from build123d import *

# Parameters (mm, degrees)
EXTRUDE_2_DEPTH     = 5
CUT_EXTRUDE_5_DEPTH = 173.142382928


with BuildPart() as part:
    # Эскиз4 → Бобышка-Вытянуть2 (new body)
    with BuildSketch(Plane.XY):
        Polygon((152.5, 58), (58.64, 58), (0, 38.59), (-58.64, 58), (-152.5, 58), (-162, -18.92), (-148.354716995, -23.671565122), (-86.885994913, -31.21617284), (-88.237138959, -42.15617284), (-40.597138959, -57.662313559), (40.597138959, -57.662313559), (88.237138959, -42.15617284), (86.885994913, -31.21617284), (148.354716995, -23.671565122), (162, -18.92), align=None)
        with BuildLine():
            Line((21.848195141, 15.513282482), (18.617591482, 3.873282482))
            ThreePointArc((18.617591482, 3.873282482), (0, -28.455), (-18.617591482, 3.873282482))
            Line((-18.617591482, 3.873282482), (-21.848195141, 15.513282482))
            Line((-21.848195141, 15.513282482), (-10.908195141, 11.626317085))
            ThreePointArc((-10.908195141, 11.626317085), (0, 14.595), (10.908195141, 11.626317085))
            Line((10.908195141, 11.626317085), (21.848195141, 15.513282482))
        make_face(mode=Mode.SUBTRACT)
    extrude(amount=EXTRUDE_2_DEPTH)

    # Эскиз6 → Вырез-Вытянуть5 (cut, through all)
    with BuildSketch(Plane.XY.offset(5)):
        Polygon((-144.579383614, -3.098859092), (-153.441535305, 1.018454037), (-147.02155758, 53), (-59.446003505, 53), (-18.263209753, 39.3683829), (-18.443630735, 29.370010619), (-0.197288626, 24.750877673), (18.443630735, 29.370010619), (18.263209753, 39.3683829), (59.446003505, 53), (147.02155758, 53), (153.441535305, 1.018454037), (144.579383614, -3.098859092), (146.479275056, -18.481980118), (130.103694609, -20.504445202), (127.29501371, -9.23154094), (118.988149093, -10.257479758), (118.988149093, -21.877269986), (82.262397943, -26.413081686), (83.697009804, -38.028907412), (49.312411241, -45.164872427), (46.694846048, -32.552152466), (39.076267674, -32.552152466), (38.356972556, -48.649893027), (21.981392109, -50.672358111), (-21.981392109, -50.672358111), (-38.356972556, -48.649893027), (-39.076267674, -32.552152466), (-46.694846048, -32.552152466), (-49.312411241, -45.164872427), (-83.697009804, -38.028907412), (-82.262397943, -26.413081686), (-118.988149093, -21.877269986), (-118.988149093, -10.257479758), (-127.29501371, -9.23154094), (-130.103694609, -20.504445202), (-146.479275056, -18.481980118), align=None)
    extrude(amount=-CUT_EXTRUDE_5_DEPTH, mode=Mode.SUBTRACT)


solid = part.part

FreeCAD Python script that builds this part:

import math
import FreeCAD as App
import Part
import Sketcher

V = App.Vector

doc = App.newDocument("Part")
body = doc.addObject("PartDesign::Body", "Body")

# Sketch on XY plane
sketch1 = body.newObject("Sketcher::SketchObject", "Sketch")
sketch1.AttachmentSupport = (doc.getObject("XY_Plane"), [""])
sketch1.MapMode = "FlatFace"
sketch1.addGeometry([
    Part.LineSegment(V(152, 58, 0), V(59, 58, 0)),  # 0
    Part.LineSegment(V(59, 58, 0), V(0, 39, 0)),  # 1
    Part.LineSegment(V(0, 39, 0), V(-59, 58, 0)),  # 2
    Part.LineSegment(V(-59, 58, 0), V(-152, 58, 0)),  # 3
    Part.LineSegment(V(-152, 58, 0), V(-162, -19, 0)),  # 4
    Part.LineSegment(V(-162, -19, 0), V(-148, -24, 0)),  # 5
    Part.LineSegment(V(-148, -24, 0), V(-87, -31, 0)),  # 6
    Part.LineSegment(V(-87, -31, 0), V(-88, -42, 0)),  # 7
    Part.LineSegment(V(-88, -42, 0), V(-41, -58, 0)),  # 8
    Part.LineSegment(V(-41, -58, 0), V(41, -58, 0)),  # 9
    Part.LineSegment(V(41, -58, 0), V(88, -42, 0)),  # 10
    Part.LineSegment(V(88, -42, 0), V(87, -31, 0)),  # 11
    Part.LineSegment(V(87, -31, 0), V(148, -24, 0)),  # 12
    Part.LineSegment(V(148, -24, 0), V(162, -19, 0)),  # 13
    Part.LineSegment(V(162, -19, 0), V(152, 58, 0)),  # 14
    Part.LineSegment(V(11, 12, 0), V(22, 16, 0)),  # 15
    Part.LineSegment(V(22, 16, 0), V(19, 4, 0)),  # 16
    Part.ArcOfCircle(Part.Circle(V(0, -7, 0), V(0, 0, 1), 22), math.radians(150), math.radians(390)),  # 17
    Part.LineSegment(V(-19, 4, 0), V(-22, 16, 0)),  # 18
    Part.LineSegment(V(-22, 16, 0), V(-11, 12, 0)),  # 19
    Part.ArcOfCircle(Part.Circle(V(0, -7, 0), V(0, 0, 1), 22), math.radians(60), math.radians(120)),  # 20
], False)
sketch1.addConstraint([
    Sketcher.Constraint("Coincident", 0, 2, 1, 1),
    Sketcher.Constraint("Coincident", 1, 2, 2, 1),
    Sketcher.Constraint("Coincident", 2, 2, 3, 1),
    Sketcher.Constraint("Coincident", 3, 2, 4, 1),
    Sketcher.Constraint("Coincident", 4, 2, 5, 1),
    Sketcher.Constraint("Coincident", 5, 2, 6, 1),
    Sketcher.Constraint("Coincident", 6, 2, 7, 1),
    Sketcher.Constraint("Coincident", 7, 2, 8, 1),
    Sketcher.Constraint("Coincident", 8, 2, 9, 1),
    Sketcher.Constraint("Coincident", 9, 2, 10, 1),
    Sketcher.Constraint("Coincident", 10, 2, 11, 1),
    Sketcher.Constraint("Coincident", 11, 2, 12, 1),
    Sketcher.Constraint("Coincident", 12, 2, 13, 1),
    Sketcher.Constraint("Coincident", 13, 2, 14, 1),
    Sketcher.Constraint("Coincident", 14, 2, 0, 1),
    Sketcher.Constraint("Coincident", 15, 2, 16, 1),
    Sketcher.Constraint("Coincident", 16, 2, 17, 2),
    Sketcher.Constraint("Coincident", 17, 1, 18, 1),
    Sketcher.Constraint("Coincident", 18, 2, 19, 1),
    Sketcher.Constraint("Coincident", 19, 2, 20, 2),
    Sketcher.Constraint("Coincident", 20, 1, 15, 1),
    Sketcher.Constraint("Horizontal", 0),
    Sketcher.Constraint("Horizontal", 3),
    Sketcher.Constraint("Horizontal", 9),
    Sketcher.Constraint("Coincident", 20, 3, 17, 3),
    Sketcher.Constraint("Equal", 17, 20),
    Sketcher.Constraint("Symmetric", 0, 2, 2, 2, -2),
    Sketcher.Constraint("Symmetric", 7, 2, 10, 2, -2),
    Sketcher.Constraint("Symmetric", 6, 2, 11, 2, -2),
    Sketcher.Constraint("Symmetric", 5, 2, 12, 2, -2),
    Sketcher.Constraint("Symmetric", 4, 2, 13, 2, -2),
    Sketcher.Constraint("Symmetric", 16, 2, 17, 1, -2),
    Sketcher.Constraint("Symmetric", 15, 2, 18, 2, -2),
    Sketcher.Constraint("PointOnObject", 1, 2, -2),
    Sketcher.Constraint("Parallel", 4, 7),
    Sketcher.Constraint("Parallel", 11, 14),
    Sketcher.Constraint("Horizontal", 19, 2, 20, 1),
    Sketcher.Constraint("Equal", 8, 10),
    Sketcher.Constraint("DistanceY", -1, 1, 0, 2, 58.0),
    Sketcher.Constraint("DistanceX", 4, 2, -1, 1, 162.0),
    Sketcher.Constraint("Radius", 17, 21.525),
    Sketcher.Constraint("Distance", 8, 50.1),
    Sketcher.Constraint("DistanceX", 0, 2, 0, 1, 93.86),
    Sketcher.Constraint("DistanceX", 3, 2, -1, 1, 152.5),
    Sketcher.Constraint("Distance", 6, 61.93),
    Sketcher.Constraint("Distance", 15, 11.61),
    Sketcher.Constraint("Distance", 16, 12.08),
    Sketcher.Constraint("DistanceY", 17, 3, -1, 1, 6.93),
    Sketcher.Constraint("DistanceY", -1, 1, 1, 2, 38.59),
    Sketcher.Constraint("DistanceY", 4, 2, -1, 1, 18.92),
    Sketcher.Constraint("DistanceY", 7, 2, 6, 2, 10.94),
    Sketcher.Constraint("DistanceX", 7, 2, 8, 2, 47.64),
    Sketcher.Constraint("DistanceY", 16, 2, 15, 2, 11.64),
    Sketcher.Constraint("DistanceX", 18, 2, 19, 2, 10.94),
    Sketcher.Constraint("DistanceX", 9, 1, 9, 2, 81.194278),
    Sketcher.Constraint("DistanceX", 5, 2, 7, 2, 60.117578),
    Sketcher.Constraint("Distance", 5, 14.448914),
])
pad1 = body.newObject("PartDesign::Pad", "Pad")
pad1.Profile = sketch1
pad1.Length = 5

# Sketch on XY plane
sketch2 = body.newObject("Sketcher::SketchObject", "Sketch001")
sketch2.AttachmentSupport = (doc.getObject("XY_Plane"), [""])
sketch2.MapMode = "FlatFace"
sketch2.AttachmentOffset = App.Placement(V(0, 0, 5), App.Rotation())
sketch2.addGeometry([
    Part.LineSegment(V(-153, 1, 0), V(-145, -3, 0)),  # 0
    Part.LineSegment(V(-145, -3, 0), V(-146, -18, 0)),  # 1
    Part.LineSegment(V(-146, -18, 0), V(-130, -21, 0)),  # 2
    Part.LineSegment(V(-130, -21, 0), V(-127, -9, 0)),  # 3
    Part.LineSegment(V(-127, -9, 0), V(-119, -10, 0)),  # 4
    Part.LineSegment(V(-119, -10, 0), V(-119, -22, 0)),  # 5
    Part.LineSegment(V(-119, -22, 0), V(-82, -26, 0)),  # 6
    Part.LineSegment(V(-82, -26, 0), V(-84, -38, 0)),  # 7
    Part.LineSegment(V(-84, -38, 0), V(-49, -45, 0)),  # 8
    Part.LineSegment(V(-49, -45, 0), V(-47, -33, 0)),  # 9
    Part.LineSegment(V(-47, -33, 0), V(-39, -33, 0)),  # 10
    Part.LineSegment(V(-39, -33, 0), V(-38, -49, 0)),  # 11
    Part.LineSegment(V(-38, -49, 0), V(-22, -51, 0)),  # 12
    Part.LineSegment(V(-22, -51, 0), V(22, -51, 0)),  # 13
    Part.LineSegment(V(22, -51, 0), V(38, -49, 0)),  # 14
    Part.LineSegment(V(38, -49, 0), V(39, -33, 0)),  # 15
    Part.LineSegment(V(39, -33, 0), V(47, -33, 0)),  # 16
    Part.LineSegment(V(47, -33, 0), V(49, -45, 0)),  # 17
    Part.LineSegment(V(49, -45, 0), V(84, -38, 0)),  # 18
    Part.LineSegment(V(84, -38, 0), V(82, -26, 0)),  # 19
    Part.LineSegment(V(82, -26, 0), V(119, -22, 0)),  # 20
    Part.LineSegment(V(119, -22, 0), V(119, -10, 0)),  # 21
    Part.LineSegment(V(119, -10, 0), V(127, -9, 0)),  # 22
    Part.LineSegment(V(127, -9, 0), V(130, -21, 0)),  # 23
    Part.LineSegment(V(130, -21, 0), V(146, -18, 0)),  # 24
    Part.LineSegment(V(146, -18, 0), V(145, -3, 0)),  # 25
    Part.LineSegment(V(145, -3, 0), V(153, 1, 0)),  # 26
    Part.LineSegment(V(153, 1, 0), V(147, 53, 0)),  # 27
    Part.LineSegment(V(147, 53, 0), V(59, 53, 0)),  # 28
    Part.LineSegment(V(59, 53, 0), V(18, 39, 0)),  # 29
    Part.LineSegment(V(18, 39, 0), V(18, 29, 0)),  # 30
    Part.LineSegment(V(18, 29, 0), V(0, 25, 0)),  # 31
    Part.LineSegment(V(0, 25, 0), V(-18, 29, 0)),  # 32
    Part.LineSegment(V(-18, 29, 0), V(-18, 39, 0)),  # 33
    Part.LineSegment(V(-18, 39, 0), V(-59, 53, 0)),  # 34
    Part.LineSegment(V(-59, 53, 0), V(-147, 53, 0)),  # 35
    Part.LineSegment(V(-147, 53, 0), V(-153, 1, 0)),  # 36
], False)
sketch2.addConstraint([
    Sketcher.Constraint("Coincident", 0, 2, 1, 1),
    Sketcher.Constraint("Coincident", 1, 2, 2, 1),
    Sketcher.Constraint("Coincident", 2, 2, 3, 1),
    Sketcher.Constraint("Coincident", 3, 2, 4, 1),
    Sketcher.Constraint("Coincident", 4, 2, 5, 1),
    Sketcher.Constraint("Coincident", 5, 2, 6, 1),
    Sketcher.Constraint("Coincident", 6, 2, 7, 1),
    Sketcher.Constraint("Coincident", 7, 2, 8, 1),
    Sketcher.Constraint("Coincident", 8, 2, 9, 1),
    Sketcher.Constraint("Coincident", 9, 2, 10, 1),
    Sketcher.Constraint("Coincident", 10, 2, 11, 1),
    Sketcher.Constraint("Coincident", 11, 2, 12, 1),
    Sketcher.Constraint("Coincident", 12, 2, 13, 1),
    Sketcher.Constraint("Coincident", 13, 2, 14, 1),
    Sketcher.Constraint("Coincident", 14, 2, 15, 1),
    Sketcher.Constraint("Coincident", 15, 2, 16, 1),
    Sketcher.Constraint("Coincident", 16, 2, 17, 1),
    Sketcher.Constraint("Coincident", 17, 2, 18, 1),
    Sketcher.Constraint("Coincident", 18, 2, 19, 1),
    Sketcher.Constraint("Coincident", 19, 2, 20, 1),
    Sketcher.Constraint("Coincident", 20, 2, 21, 1),
    Sketcher.Constraint("Coincident", 21, 2, 22, 1),
    Sketcher.Constraint("Coincident", 22, 2, 23, 1),
    Sketcher.Constraint("Coincident", 23, 2, 24, 1),
    Sketcher.Constraint("Coincident", 24, 2, 25, 1),
    Sketcher.Constraint("Coincident", 25, 2, 26, 1),
    Sketcher.Constraint("Coincident", 26, 2, 27, 1),
    Sketcher.Constraint("Coincident", 27, 2, 28, 1),
    Sketcher.Constraint("Coincident", 28, 2, 29, 1),
    Sketcher.Constraint("Coincident", 29, 2, 30, 1),
    Sketcher.Constraint("Coincident", 30, 2, 31, 1),
    Sketcher.Constraint("Coincident", 31, 2, 32, 1),
    Sketcher.Constraint("Coincident", 32, 2, 33, 1),
    Sketcher.Constraint("Coincident", 33, 2, 34, 1),
    Sketcher.Constraint("Coincident", 34, 2, 35, 1),
    Sketcher.Constraint("Coincident", 35, 2, 36, 1),
    Sketcher.Constraint("Coincident", 36, 2, 0, 1),
    Sketcher.Constraint("Vertical", 5),
    Sketcher.Constraint("Horizontal", 10),
    Sketcher.Constraint("Horizontal", 13),
    Sketcher.Constraint("Horizontal", 16),
    Sketcher.Constraint("Vertical", 21),
    Sketcher.Constraint("Horizontal", 28),
    Sketcher.Constraint("Horizontal", 35),
    Sketcher.Constraint("Symmetric", 11, 2, 14, 2, -2),
    Sketcher.Constraint("Symmetric", 10, 2, 15, 2, -2),
    Sketcher.Constraint("Symmetric", 8, 2, 17, 2, -2),
    Sketcher.Constraint("Symmetric", 7, 2, 18, 2, -2),
    Sketcher.Constraint("Symmetric", 6, 2, 19, 2, -2),
    Sketcher.Constraint("Symmetric", 5, 2, 20, 2, -2),
    Sketcher.Constraint("Symmetric", 3, 2, 22, 2, -2),
    Sketcher.Constraint("Symmetric", 2, 2, 23, 2, -2),
    Sketcher.Constraint("Symmetric", 1, 2, 24, 2, -2),
    Sketcher.Constraint("Symmetric", 0, 2, 25, 2, -2),
    Sketcher.Constraint("Symmetric", 30, 2, 32, 2, -2),
    Sketcher.Constraint("Symmetric", 29, 2, 33, 2, -2),
    Sketcher.Constraint("Symmetric", 28, 2, 34, 2, -2),
    Sketcher.Constraint("Symmetric", 26, 2, 36, 2, -2),
    Sketcher.Constraint("Perpendicular", 1, 2),
    Sketcher.Constraint("Parallel", 2, 4),
    Sketcher.Constraint("Parallel", 4, 6),
    Sketcher.Constraint("Perpendicular", 6, 7),
    Sketcher.Constraint("Perpendicular", 8, 9),
    Sketcher.Constraint("Perpendicular", 7, 12),
    Sketcher.Constraint("Perpendicular", 17, 18),
    Sketcher.Constraint("Perpendicular", 14, 19),
    Sketcher.Constraint("Parallel", 20, 22),
    Sketcher.Constraint("Parallel", 25, 27),
    Sketcher.Constraint("Perpendicular", 12, 36),
    Sketcher.Constraint("Equal", 2, 12),
    Sketcher.Constraint("Distance", 30, 10.0),
    Sketcher.Constraint("DistanceY", -1, 1, 27, 2, 53.0),
    Sketcher.Constraint("Distance", 1, 15.5),
    Sketcher.Constraint("Distance", 2, 16.5),
    Sketcher.Constraint("Distance", 0, 9.771898),
    Sketcher.Constraint("DistanceX", 10, 1, 10, 2, 7.618578),
    Sketcher.Constraint("DistanceY", 5, 2, 5, 1, 11.61979),
    Sketcher.Constraint("DistanceY", 1, 2, 4, 2, 8.2245),
    Sketcher.Constraint("DistanceY", 6, 2, 4, 2, 16.155602),
    Sketcher.Constraint("DistanceX", 7, 2, 8, 2, 34.384599),
    Sketcher.Constraint("DistanceY", 23, 2, 26, 2, 21.522899),
    Sketcher.Constraint("DistanceX", 29, 2, 17, 2, 31.049201),
    Sketcher.Constraint("DistanceX", 31, 2, 29, 2, 18.460498),
    Sketcher.Constraint("Distance", 4, 8.369979),
    Sketcher.Constraint("Distance", 6, 37.004789),
    Sketcher.Constraint("Distance", 7, 11.704081),
    Sketcher.Constraint("Distance", 8, 35.117269),
    Sketcher.Constraint("Distance", 29, 43.38022),
    Sketcher.Constraint("Distance", 32, 18.821939),
    Sketcher.Constraint("DistanceX", 13, 1, 13, 2, 43.962784),
    Sketcher.Constraint("DistanceX", 28, 2, 28, 1, 87.575554),
    Sketcher.Constraint("DistanceY", 0, 2, -1, 1, 3.098859),
    Sketcher.Constraint("DistanceX", 4, 2, -1, 1, 118.988149),
    Sketcher.Constraint("DistanceY", 12, 2, -1, 1, 50.672358),
    Sketcher.Constraint("DistanceX", -1, 1, 30, 2, 18.443631),
    Sketcher.Constraint("DistanceY", -1, 1, 30, 2, 29.370011),
    Sketcher.Constraint("DistanceY", 8, 2, 9, 2, 12.61272),
])
pocket1 = body.newObject("PartDesign::Pocket", "Pocket")
pocket1.Profile = sketch2
pocket1.Type = "ThroughAll"

doc.recompute()
